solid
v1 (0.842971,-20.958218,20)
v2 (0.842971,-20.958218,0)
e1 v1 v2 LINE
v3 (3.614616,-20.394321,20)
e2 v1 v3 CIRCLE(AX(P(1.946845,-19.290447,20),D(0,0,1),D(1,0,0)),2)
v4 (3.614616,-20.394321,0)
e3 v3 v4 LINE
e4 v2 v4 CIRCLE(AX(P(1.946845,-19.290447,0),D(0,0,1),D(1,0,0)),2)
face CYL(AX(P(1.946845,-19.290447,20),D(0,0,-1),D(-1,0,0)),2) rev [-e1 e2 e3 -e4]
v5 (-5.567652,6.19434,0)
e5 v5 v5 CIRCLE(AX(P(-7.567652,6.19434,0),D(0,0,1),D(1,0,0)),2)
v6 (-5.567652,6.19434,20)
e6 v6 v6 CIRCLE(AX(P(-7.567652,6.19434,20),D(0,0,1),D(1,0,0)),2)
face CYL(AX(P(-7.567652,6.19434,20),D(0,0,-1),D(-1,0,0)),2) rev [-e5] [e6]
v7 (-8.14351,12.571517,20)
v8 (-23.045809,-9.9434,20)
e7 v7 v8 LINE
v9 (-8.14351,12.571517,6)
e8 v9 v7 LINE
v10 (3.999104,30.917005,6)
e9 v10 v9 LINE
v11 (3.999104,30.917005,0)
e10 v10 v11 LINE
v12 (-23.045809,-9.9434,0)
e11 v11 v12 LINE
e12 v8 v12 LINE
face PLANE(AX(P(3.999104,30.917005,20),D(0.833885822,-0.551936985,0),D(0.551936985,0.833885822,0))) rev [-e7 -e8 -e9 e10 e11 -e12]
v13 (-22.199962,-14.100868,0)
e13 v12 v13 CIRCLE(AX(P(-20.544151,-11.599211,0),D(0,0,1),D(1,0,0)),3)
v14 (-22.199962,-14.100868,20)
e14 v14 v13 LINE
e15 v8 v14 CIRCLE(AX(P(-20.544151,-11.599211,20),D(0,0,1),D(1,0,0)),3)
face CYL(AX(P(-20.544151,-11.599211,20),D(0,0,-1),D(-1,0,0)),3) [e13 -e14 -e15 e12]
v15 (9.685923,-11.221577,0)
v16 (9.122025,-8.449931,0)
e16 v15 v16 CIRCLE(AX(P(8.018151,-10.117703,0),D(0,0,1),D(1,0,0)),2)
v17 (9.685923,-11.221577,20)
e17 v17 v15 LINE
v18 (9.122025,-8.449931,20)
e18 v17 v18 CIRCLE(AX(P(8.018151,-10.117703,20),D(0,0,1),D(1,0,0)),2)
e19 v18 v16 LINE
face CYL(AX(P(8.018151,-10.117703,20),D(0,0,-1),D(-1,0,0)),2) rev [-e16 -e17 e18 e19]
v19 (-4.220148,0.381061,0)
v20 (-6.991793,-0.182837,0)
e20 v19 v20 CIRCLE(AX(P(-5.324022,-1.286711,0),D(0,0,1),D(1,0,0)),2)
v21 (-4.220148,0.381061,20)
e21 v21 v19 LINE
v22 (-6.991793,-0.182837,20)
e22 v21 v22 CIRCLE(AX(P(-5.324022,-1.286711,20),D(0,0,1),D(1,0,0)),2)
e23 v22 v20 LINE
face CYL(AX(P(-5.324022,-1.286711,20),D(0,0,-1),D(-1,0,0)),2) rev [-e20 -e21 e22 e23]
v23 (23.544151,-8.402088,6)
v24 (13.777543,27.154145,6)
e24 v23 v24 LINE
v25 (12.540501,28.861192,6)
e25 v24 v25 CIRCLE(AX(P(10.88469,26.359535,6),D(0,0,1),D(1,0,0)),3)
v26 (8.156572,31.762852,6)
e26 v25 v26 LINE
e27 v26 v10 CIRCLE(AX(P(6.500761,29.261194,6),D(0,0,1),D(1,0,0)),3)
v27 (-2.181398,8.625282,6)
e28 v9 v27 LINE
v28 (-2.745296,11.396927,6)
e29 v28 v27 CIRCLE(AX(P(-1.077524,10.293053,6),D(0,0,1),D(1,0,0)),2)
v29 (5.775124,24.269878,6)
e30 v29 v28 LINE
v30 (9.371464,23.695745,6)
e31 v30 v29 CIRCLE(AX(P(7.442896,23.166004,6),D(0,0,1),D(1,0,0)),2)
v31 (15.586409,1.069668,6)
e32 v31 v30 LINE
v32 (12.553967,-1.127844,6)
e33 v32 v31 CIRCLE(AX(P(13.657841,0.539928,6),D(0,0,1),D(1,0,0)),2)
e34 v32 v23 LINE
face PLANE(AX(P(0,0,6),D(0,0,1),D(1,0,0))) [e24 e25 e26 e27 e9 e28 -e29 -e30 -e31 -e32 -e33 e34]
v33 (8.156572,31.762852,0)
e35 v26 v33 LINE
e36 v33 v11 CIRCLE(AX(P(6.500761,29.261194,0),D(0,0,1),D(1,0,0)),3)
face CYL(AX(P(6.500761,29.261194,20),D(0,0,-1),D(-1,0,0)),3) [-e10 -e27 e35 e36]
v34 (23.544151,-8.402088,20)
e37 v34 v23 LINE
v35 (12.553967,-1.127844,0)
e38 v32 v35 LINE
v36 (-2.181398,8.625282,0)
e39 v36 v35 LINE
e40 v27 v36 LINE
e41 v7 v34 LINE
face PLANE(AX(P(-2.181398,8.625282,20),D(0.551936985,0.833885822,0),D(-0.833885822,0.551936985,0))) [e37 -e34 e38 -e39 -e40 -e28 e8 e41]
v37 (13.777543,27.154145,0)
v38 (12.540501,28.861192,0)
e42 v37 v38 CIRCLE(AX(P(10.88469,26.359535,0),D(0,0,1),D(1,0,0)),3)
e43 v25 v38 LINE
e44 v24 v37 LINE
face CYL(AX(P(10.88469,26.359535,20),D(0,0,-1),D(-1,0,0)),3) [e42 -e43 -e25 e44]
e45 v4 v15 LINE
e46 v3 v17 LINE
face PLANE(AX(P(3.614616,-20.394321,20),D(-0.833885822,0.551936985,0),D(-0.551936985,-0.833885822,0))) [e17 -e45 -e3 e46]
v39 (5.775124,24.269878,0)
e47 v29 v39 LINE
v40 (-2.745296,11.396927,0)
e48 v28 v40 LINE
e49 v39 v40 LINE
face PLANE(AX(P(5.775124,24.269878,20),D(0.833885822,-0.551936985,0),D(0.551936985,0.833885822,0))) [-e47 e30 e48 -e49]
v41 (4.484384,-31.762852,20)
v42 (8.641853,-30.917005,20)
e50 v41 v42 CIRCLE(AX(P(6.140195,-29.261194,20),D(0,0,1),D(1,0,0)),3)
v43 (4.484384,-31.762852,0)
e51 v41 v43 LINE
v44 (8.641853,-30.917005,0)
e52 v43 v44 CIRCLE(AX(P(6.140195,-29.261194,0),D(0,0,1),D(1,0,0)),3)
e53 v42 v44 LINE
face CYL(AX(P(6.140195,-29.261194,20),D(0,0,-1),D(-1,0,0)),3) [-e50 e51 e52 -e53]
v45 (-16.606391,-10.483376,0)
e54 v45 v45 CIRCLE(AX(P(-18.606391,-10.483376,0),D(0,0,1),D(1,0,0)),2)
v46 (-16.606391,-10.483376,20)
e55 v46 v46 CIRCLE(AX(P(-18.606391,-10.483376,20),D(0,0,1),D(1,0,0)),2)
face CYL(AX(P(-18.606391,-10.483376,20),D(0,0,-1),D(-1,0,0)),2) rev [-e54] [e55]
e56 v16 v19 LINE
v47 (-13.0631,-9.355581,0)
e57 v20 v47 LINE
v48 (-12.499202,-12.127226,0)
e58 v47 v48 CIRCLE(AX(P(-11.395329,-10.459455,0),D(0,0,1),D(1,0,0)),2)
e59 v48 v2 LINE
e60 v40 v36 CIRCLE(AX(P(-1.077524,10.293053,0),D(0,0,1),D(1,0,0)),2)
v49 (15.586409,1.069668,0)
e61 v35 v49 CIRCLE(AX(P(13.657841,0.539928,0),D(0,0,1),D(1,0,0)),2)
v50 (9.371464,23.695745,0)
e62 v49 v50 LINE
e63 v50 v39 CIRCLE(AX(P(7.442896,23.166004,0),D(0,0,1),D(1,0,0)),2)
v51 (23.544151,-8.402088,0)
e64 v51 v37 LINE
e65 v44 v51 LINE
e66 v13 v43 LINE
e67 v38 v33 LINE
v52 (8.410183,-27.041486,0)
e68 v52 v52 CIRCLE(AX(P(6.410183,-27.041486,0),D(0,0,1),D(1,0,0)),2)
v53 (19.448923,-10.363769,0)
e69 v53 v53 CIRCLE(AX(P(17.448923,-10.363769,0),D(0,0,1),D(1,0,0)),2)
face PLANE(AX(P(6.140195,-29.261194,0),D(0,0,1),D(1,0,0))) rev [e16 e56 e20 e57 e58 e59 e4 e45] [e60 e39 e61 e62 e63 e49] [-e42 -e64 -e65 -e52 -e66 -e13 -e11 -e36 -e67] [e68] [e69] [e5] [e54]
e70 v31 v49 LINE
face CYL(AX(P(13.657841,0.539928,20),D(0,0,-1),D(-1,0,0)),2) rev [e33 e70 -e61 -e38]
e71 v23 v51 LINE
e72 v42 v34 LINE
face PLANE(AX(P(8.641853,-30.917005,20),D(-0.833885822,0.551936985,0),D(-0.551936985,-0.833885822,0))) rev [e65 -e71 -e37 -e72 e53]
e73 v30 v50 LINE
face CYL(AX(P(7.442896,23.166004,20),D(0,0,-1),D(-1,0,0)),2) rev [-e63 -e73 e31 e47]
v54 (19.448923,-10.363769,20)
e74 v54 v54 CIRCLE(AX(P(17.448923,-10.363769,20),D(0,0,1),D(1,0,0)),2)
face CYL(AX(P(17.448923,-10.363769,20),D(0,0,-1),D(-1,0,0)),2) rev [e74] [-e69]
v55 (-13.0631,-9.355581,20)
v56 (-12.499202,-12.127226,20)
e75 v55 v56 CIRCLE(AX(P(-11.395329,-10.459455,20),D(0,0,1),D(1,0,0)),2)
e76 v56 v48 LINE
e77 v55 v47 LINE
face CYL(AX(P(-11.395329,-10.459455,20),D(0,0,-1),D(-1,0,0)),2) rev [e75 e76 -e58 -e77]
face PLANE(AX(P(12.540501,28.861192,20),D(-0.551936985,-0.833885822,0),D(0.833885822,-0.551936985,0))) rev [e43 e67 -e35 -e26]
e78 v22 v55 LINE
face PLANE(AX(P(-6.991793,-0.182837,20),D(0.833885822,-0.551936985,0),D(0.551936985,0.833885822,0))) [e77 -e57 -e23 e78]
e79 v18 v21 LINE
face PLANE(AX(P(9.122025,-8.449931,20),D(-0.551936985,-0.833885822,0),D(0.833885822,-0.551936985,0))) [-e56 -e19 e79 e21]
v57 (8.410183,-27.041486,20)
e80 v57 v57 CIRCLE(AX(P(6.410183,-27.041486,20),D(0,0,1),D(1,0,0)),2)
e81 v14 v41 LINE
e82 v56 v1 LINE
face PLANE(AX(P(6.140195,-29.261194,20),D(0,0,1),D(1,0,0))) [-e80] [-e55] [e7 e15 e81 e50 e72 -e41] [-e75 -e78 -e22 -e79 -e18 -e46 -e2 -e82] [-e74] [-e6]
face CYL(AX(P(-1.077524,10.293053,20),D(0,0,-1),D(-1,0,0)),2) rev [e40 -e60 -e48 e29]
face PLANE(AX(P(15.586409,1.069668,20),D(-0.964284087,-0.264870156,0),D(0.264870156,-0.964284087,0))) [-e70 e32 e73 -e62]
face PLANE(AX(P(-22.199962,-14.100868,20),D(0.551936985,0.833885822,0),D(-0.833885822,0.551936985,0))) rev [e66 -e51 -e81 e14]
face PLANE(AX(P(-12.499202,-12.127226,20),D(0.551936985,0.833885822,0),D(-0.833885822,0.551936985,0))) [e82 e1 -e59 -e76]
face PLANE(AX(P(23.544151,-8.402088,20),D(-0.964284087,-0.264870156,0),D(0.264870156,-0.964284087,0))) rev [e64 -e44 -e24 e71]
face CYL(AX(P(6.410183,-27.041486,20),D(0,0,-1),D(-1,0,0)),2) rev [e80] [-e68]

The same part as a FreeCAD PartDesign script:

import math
import FreeCAD as App
import Part
import Sketcher

V = App.Vector
Q = App.Units.Quantity

doc = App.newDocument("Part")
params = doc.addObject("Spreadsheet::Sheet", "Params")
for row, (alias, value) in enumerate([
    ("sketch1_diameter", "4 mm"),
    ("sketch1_radius", "3 mm"),
    ("sketch1_length", "27 mm"),
    ("sketch1_length2", "49 mm"),
    ("sketch1_length3", "32 mm"),
    ("pad1_length", "20 mm"),
    ("sketch2_length", "38 mm"),
    ("pocket1_length", "14 mm"),
], start=1):
    params.set(f"A{row}", alias)
    params.set(f"B{row}", "=" + value)
    params.setAlias(f"B{row}", alias)

body = doc.addObject("PartDesign::Body", "Body")

# Sketch on XY plane
sketch1 = body.newObject("Sketcher::SketchObject", "Sketch")
sketch1.AttachmentSupport = (doc.getObject("XY_Plane"), [""])
sketch1.MapMode = "FlatFace"
sketch1.addGeometry(Part.LineSegment(V(8.6, -30.9, 0), V(23.5, -8.4, 0)), False)
sketch1.addGeometry(Part.LineSegment(V(23.5, -8.4, 0), V(13.8, 27.2, 0)), False)
sketch1.addGeometry(Part.ArcOfCircle(Part.Circle(V(10.9, 26.4, 0), V(0, 0, 1), 3), math.radians(15), math.radians(56)), False)
sketch1.addGeometry(Part.LineSegment(V(12.5, 28.9, 0), V(8.2, 31.8, 0)), False)
sketch1.addGeometry(Part.ArcOfCircle(Part.Circle(V(6.5, 29.3, 0), V(0, 0, 1), 3), math.radians(56), math.radians(147)), False)
sketch1.addGeometry(Part.LineSegment(V(4, 30.9, 0), V(-23, -9.9, 0)), False)
sketch1.addGeometry(Part.ArcOfCircle(Part.Circle(V(-20.5, -11.6, 0), V(0, 0, 1), 3), math.radians(146), math.radians(237)), False)
sketch1.addGeometry(Part.LineSegment(V(-22.2, -14.1, 0), V(4.5, -31.8, 0)), False)
sketch1.addGeometry(Part.ArcOfCircle(Part.Circle(V(6.1, -29.3, 0), V(0, 0, 1), 3), math.radians(-124), math.radians(-33)), False)
sketch1.addGeometry(Part.Circle(V(-18.6, -10.5, 0), V(0, 0, 1), 2), False)
sketch1.addGeometry(Part.LineSegment(V(9.7, -11.2, 0), V(3.6, -20.4, 0)), False)
sketch1.addGeometry(Part.ArcOfCircle(Part.Circle(V(1.9, -19.3, 0), V(0, 0, 1), 2), math.radians(-123), math.radians(-33)), False)
sketch1.addGeometry(Part.LineSegment(V(0.8, -21, 0), V(-12.5, -12.1, 0)), False)
sketch1.addGeometry(Part.ArcOfCircle(Part.Circle(V(-11.4, -10.5, 0), V(0, 0, 1), 2), math.radians(147), math.radians(237)), False)
sketch1.addGeometry(Part.LineSegment(V(-13.1, -9.4, 0), V(-7, -0.2, 0)), False)
sketch1.addGeometry(Part.ArcOfCircle(Part.Circle(V(-5.3, -1.3, 0), V(0, 0, 1), 2), math.radians(56), math.radians(147)), False)
sketch1.addGeometry(Part.LineSegment(V(-4.2, 0.4, 0), V(9.1, -8.4, 0)), False)
sketch1.addGeometry(Part.ArcOfCircle(Part.Circle(V(8, -10.1, 0), V(0, 0, 1), 2), math.radians(-33), math.radians(56)), False)
sketch1.addGeometry(Part.Circle(V(6.4, -27, 0), V(0, 0, 1), 2), False)
sketch1.addGeometry(Part.Circle(V(17.4, -10.4, 0), V(0, 0, 1), 2), False)
sketch1.addGeometry(Part.Circle(V(-7.6, 6.2, 0), V(0, 0, 1), 2), False)
sketch1.addGeometry(Part.LineSegment(V(12.6, -1.1, 0), V(-2.2, 8.6, 0)), False)
sketch1.addGeometry(Part.ArcOfCircle(Part.Circle(V(-1.1, 10.3, 0), V(0, 0, 1), 2), math.radians(146), math.radians(237)), False)
sketch1.addGeometry(Part.LineSegment(V(-2.7, 11.4, 0), V(5.8, 24.3, 0)), False)
sketch1.addGeometry(Part.ArcOfCircle(Part.Circle(V(7.4, 23.2, 0), V(0, 0, 1), 2), math.radians(15), math.radians(146)), False)
sketch1.addGeometry(Part.LineSegment(V(9.4, 23.7, 0), V(15.6, 1.1, 0)), False)
sketch1.addGeometry(Part.ArcOfCircle(Part.Circle(V(13.7, 0.5, 0), V(0, 0, 1), 2), math.radians(-123), math.radians(15)), False)
sketch1.addConstraint(Sketcher.Constraint("Coincident", 0, 2, 1, 1))
sketch1.addConstraint(Sketcher.Constraint("Tangent", 1, 2, 2, 1))
sketch1.addConstraint(Sketcher.Constraint("Tangent", 2, 2, 3, 1))
sketch1.addConstraint(Sketcher.Constraint("Tangent", 3, 2, 4, 1))
sketch1.addConstraint(Sketcher.Constraint("Tangent", 4, 2, 5, 1))
sketch1.addConstraint(Sketcher.Constraint("Tangent", 5, 2, 6, 1))
sketch1.addConstraint(Sketcher.Constraint("Tangent", 6, 2, 7, 1))
sketch1.addConstraint(Sketcher.Constraint("Tangent", 7, 2, 8, 1))
sketch1.addConstraint(Sketcher.Constraint("Tangent", 8, 2, 0, 1))
sketch1.addConstraint(Sketcher.Constraint("Tangent", 10, 2, 11, 2))
sketch1.addConstraint(Sketcher.Constraint("Tangent", 11, 1, 12, 1))
sketch1.addConstraint(Sketcher.Constraint("Tangent", 12, 2, 13, 2))
sketch1.addConstraint(Sketcher.Constraint("Tangent", 13, 1, 14, 1))
sketch1.addConstraint(Sketcher.Constraint("Tangent", 14, 2, 15, 2))
sketch1.addConstraint(Sketcher.Constraint("Tangent", 15, 1, 16, 1))
sketch1.addConstraint(Sketcher.Constraint("Tangent", 16, 2, 17, 2))
sketch1.addConstraint(Sketcher.Constraint("Tangent", 17, 1, 10, 1))
sketch1.addConstraint(Sketcher.Constraint("Tangent", 21, 2, 22, 2))
sketch1.addConstraint(Sketcher.Constraint("Tangent", 22, 1, 23, 1))
sketch1.addConstraint(Sketcher.Constraint("Tangent", 23, 2, 24, 2))
sketch1.addConstraint(Sketcher.Constraint("Tangent", 24, 1, 25, 1))
sketch1.addConstraint(Sketcher.Constraint("Tangent", 25, 2, 26, 2))
sketch1.addConstraint(Sketcher.Constraint("Tangent", 26, 1, 21, 1))
sketch1.addConstraint(Sketcher.Constraint("Equal", 2, 4))
sketch1.addConstraint(Sketcher.Constraint("Equal", 4, 6))
sketch1.addConstraint(Sketcher.Constraint("Equal", 6, 8))
sketch1.addConstraint(Sketcher.Constraint("Equal", 9, 11))
sketch1.addConstraint(Sketcher.Constraint("Equal", 11, 13))
sketch1.addConstraint(Sketcher.Constraint("Equal", 13, 15))
sketch1.addConstraint(Sketcher.Constraint("Equal", 15, 17))
sketch1.addConstraint(Sketcher.Constraint("Equal", 17, 18))
sketch1.addConstraint(Sketcher.Constraint("Equal", 18, 19))
sketch1.addConstraint(Sketcher.Constraint("Equal", 19, 20))
sketch1.addConstraint(Sketcher.Constraint("Equal", 20, 22))
sketch1.addConstraint(Sketcher.Constraint("Equal", 22, 24))
sketch1.addConstraint(Sketcher.Constraint("Equal", 24, 26))
sketch1.addConstraint(Sketcher.Constraint("Perpendicular", 0, 3))
sketch1.addConstraint(Sketcher.Constraint("Perpendicular", 3, 5))
sketch1.addConstraint(Sketcher.Constraint("Perpendicular", 5, 7))
sketch1.addConstraint(Sketcher.Constraint("Perpendicular", 7, 10))
sketch1.addConstraint(Sketcher.Constraint("Perpendicular", 10, 12))
sketch1.addConstraint(Sketcher.Constraint("Perpendicular", 12, 14))
sketch1.addConstraint(Sketcher.Constraint("Perpendicular", 14, 16))
sketch1.addConstraint(Sketcher.Constraint("Parallel", 16, 21))
sketch1.addConstraint(Sketcher.Constraint("Perpendicular", 21, 23))
sketch1.addConstraint(Sketcher.Constraint("Parallel", 1, 25))
sketch1.addConstraint(Sketcher.Constraint("Diameter", 9, 4.0))
sketch1.addConstraint(Sketcher.Constraint("Radius", 2, 3.0))
sketch1.addConstraint(Sketcher.Constraint("Distance", 0, 27.0))
sketch1.addConstraint(Sketcher.Constraint("Distance", 5, 49.0))
sketch1.addConstraint(Sketcher.Constraint("Distance", 7, 32.0))
sketch1.addConstraint(Sketcher.Constraint("Distance", 10, 11.0))
sketch1.addConstraint(Sketcher.Constraint("Distance", 12, 16.0))
sketch1.addConstraint(Sketcher.Constraint("Angle", 0, Q("56.5 deg")))
sketch1.addConstraint(Sketcher.Constraint("DistanceX", 17, 3, 0, 2, 15.526))
sketch1.addConstraint(Sketcher.Constraint("DistanceY", 24, 3, 4, 2, 7.751001))
sketch1.addConstraint(Sketcher.Constraint("DistanceX", 17, 1, 19, 3, 7.763))
sketch1.addConstraint(Sketcher.Constraint("DistanceX", -1, 1, 2, 2, 12.540501))
sketch1.addConstraint(Sketcher.Constraint("DistanceY", 5, 2, -1, 1, 9.9434))
sketch1.addConstraint(Sketcher.Constraint("DistanceX", 13, 1, -1, 1, 13.0631))
sketch1.addConstraint(Sketcher.Constraint("DistanceX", 21, 2, -1, 1, 2.181398))
sketch1.addConstraint(Sketcher.Constraint("DistanceY", 6, 3, 15, 3, 10.3125))
sketch1.addConstraint(Sketcher.Constraint("DistanceX", 6, 3, 20, 3, 12.9765))
sketch1.addConstraint(Sketcher.Constraint("DistanceX", 26, 3, 1, 2, 0.119702))
sketch1.addConstraint(Sketcher.Constraint("DistanceX", 7, 2, 18, 3, 1.925799))
sketch1.addConstraint(Sketcher.Constraint("DistanceX", 9, 3, -1, 1, 18.606391))
sketch1.addConstraint(Sketcher.Constraint("DistanceY", 19, 3, -1, 1, 10.363769))
sketch1.addConstraint(Sketcher.Constraint("DistanceY", -1, 1, 20, 3, 6.19434))
sketch1.addConstraint(Sketcher.Constraint("DistanceY", 8, 3, 9, 3, 18.777818))
sketch1.addConstraint(Sketcher.Constraint("DistanceY", 8, 3, 18, 3, 2.219709))
sketch1.setExpression("Constraints[46]", "Params.sketch1_diameter")
sketch1.setExpression("Constraints[47]", "Params.sketch1_radius")
sketch1.setExpression("Constraints[48]", "Params.sketch1_length")
sketch1.setExpression("Constraints[49]", "Params.sketch1_length2")
sketch1.setExpression("Constraints[50]", "Params.sketch1_length3")
pad1 = body.newObject("PartDesign::Pad", "Pad")
pad1.Profile = sketch1
pad1.setExpression("Length", "Params.pad1_length")

# Sketch on XY plane
sketch2 = body.newObject("Sketcher::SketchObject", "Sketch001")
sketch2.AttachmentSupport = (doc.getObject("XY_Plane"), [""])
sketch2.MapMode = "FlatFace"
sketch2.AttachmentOffset = App.Placement(V(0, 0, 20), App.Rotation())
sketch2.addGeometry(Part.LineSegment(V(-8, 13, 0), V(24, -8, 0)), False)
sketch2.addGeometry(Part.LineSegment(V(24, -8, 0), V(37, 19, 0)), False)
sketch2.addGeometry(Part.LineSegment(V(37, 19, 0), V(5, 36, 0)), False)
sketch2.addGeometry(Part.LineSegment(V(5, 36, 0), V(-8, 13, 0)), False)
sketch2.addConstraint(Sketcher.Constraint("Coincident", 0, 2, 1, 1))
sketch2.addConstraint(Sketcher.Constraint("Coincident", 1, 2, 2, 1))
sketch2.addConstraint(Sketcher.Constraint("Coincident", 2, 2, 3, 1))
sketch2.addConstraint(Sketcher.Constraint("Coincident", 3, 2, 0, 1))
sketch2.addConstraint(Sketcher.Constraint("Distance", 0, 38.0))
sketch2.addConstraint(Sketcher.Constraint("Angle", 0, Q("-33.5 deg")))
sketch2.addConstraint(Sketcher.Constraint("Distance", 1, 30.753162))
sketch2.addConstraint(Sketcher.Constraint("Distance", 2, 36.396149))
sketch2.addConstraint(Sketcher.Constraint("DistanceX", -1, 1, 0, 2, 23.544151))
sketch2.addConstraint(Sketcher.Constraint("DistanceY", 0, 2, -1, 1, 8.402088))
sketch2.addConstraint(Sketcher.Constraint("DistanceY", -1, 1, 1, 2, 19.156948))
sketch2.addConstraint(Sketcher.Constraint("DistanceX", 2, 2, 1, 2, 32.489329))
sketch2.setExpression("Constraints[4]", "Params.sketch2_length")
pocket1 = body.newObject("PartDesign::Pocket", "Pocket")
pocket1.Profile = sketch2
pocket1.setExpression("Length", "Params.pocket1_length")

doc.recompute()
